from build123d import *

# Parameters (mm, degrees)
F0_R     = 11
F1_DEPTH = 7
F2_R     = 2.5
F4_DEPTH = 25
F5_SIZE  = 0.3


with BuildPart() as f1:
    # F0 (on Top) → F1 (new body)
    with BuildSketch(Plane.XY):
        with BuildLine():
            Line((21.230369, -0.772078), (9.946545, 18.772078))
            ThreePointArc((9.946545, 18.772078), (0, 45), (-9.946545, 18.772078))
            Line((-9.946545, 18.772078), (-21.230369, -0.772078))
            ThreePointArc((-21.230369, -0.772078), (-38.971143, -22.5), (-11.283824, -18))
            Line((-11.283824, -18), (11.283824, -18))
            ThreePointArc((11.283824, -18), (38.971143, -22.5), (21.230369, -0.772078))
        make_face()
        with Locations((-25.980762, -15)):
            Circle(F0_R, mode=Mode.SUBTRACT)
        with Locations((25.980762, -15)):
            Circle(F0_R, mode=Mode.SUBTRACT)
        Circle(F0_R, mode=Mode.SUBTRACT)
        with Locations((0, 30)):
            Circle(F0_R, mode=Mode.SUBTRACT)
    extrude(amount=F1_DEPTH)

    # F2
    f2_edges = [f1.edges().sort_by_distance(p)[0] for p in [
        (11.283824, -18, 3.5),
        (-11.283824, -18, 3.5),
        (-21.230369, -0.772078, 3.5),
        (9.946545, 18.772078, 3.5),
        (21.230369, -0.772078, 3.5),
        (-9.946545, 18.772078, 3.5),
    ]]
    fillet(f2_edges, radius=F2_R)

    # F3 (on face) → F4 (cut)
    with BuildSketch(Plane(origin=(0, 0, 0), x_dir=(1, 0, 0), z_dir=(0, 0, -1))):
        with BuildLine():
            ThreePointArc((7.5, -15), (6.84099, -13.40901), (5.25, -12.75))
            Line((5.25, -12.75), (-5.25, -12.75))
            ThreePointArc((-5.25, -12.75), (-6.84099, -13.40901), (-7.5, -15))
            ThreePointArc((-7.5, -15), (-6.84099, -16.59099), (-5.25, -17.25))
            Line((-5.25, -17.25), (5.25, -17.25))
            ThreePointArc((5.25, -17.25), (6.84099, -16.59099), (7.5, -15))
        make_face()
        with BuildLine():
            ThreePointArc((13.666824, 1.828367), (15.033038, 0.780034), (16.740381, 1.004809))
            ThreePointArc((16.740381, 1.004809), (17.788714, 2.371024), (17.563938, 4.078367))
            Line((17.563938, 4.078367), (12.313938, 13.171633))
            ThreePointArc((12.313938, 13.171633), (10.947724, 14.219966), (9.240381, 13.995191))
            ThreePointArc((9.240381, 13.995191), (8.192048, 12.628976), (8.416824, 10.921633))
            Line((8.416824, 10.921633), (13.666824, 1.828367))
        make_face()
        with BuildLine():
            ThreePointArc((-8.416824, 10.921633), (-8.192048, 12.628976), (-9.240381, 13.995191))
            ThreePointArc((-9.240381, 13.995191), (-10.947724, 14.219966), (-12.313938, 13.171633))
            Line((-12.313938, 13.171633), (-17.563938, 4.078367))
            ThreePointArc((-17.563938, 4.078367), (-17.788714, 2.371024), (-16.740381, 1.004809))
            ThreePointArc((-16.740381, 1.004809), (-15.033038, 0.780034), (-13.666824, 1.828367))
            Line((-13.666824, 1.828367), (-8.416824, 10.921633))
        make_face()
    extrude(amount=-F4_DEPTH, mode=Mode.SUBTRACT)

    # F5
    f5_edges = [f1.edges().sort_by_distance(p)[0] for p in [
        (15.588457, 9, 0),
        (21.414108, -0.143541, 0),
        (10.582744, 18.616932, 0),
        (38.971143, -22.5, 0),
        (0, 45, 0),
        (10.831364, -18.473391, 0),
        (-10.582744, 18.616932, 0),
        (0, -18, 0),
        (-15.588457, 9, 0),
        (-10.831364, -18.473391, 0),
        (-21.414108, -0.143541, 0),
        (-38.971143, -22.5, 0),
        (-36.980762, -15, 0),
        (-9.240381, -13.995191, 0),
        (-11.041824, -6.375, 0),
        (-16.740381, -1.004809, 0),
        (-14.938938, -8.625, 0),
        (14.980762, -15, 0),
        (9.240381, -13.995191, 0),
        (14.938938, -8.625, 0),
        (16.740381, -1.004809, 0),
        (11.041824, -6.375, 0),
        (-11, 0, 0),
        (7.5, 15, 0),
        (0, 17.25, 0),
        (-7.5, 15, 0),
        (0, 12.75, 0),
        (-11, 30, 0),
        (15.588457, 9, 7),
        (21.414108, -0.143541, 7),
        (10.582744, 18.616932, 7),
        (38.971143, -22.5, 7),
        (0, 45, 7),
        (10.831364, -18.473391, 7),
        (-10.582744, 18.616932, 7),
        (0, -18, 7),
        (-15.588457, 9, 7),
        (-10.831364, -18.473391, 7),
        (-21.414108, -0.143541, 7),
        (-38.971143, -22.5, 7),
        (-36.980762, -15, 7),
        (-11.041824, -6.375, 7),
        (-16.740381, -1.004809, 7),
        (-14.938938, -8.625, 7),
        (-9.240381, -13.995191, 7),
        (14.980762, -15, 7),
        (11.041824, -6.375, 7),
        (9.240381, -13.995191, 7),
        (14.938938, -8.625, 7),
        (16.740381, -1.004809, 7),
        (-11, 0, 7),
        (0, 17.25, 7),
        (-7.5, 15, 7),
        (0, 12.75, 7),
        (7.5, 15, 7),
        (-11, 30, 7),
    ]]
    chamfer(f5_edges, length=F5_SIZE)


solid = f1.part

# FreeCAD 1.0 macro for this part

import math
import FreeCAD as App
import Part
import Sketcher

V = App.Vector
Q = App.Units.Quantity


def edges_at(feature, points):
    """Names of the edges that pass closest to the given points."""
    edges = feature.Shape.Edges
    near = lambda p: min(range(len(edges)), key=lambda i: edges[i].distToShape(Part.Vertex(*p))[0])
    return sorted({f"Edge{near(p) + 1}" for p in points})

doc = App.newDocument("Part")
body = doc.addObject("PartDesign::Body", "Body")

sketch1 = body.newObject("Sketcher::SketchObject", "Sketch")
sketch1.AttachmentSupport = (doc.getObject("XY_Plane"), [""])
sketch1.MapMode = "FlatFace"
sketch1.addGeometry(Part.LineSegment(V(21.230369, -0.772078, 0), V(9.946545, 18.772078, 0)), False)
sketch1.addGeometry(Part.ArcOfCircle(Part.Circle(V(0, 30, 0), V(0, 0, 1), 15), math.radians(-48.463043), math.radians(228.463043)), False)
sketch1.addGeometry(Part.LineSegment(V(-9.946545, 18.772078, 0), V(-21.230369, -0.772078, 0)), False)
sketch1.addGeometry(Part.ArcOfCircle(Part.Circle(V(-25.980762, -15, 0), V(0, 0, 1), 15), math.radians(71.536958), math.radians(348.46304)), False)
sketch1.addGeometry(Part.LineSegment(V(-11.283824, -18, 0), V(11.283824, -18, 0)), False)
sketch1.addGeometry(Part.ArcOfCircle(Part.Circle(V(25.980762, -15, 0), V(0, 0, 1), 15), math.radians(-168.46304), math.radians(108.463042)), False)
sketch1.addGeometry(Part.Circle(V(-25.980762, -15, 0), V(0, 0, 1), 11), False)
sketch1.addGeometry(Part.Circle(V(25.980762, -15, 0), V(0, 0, 1), 11), False)
sketch1.addGeometry(Part.Circle(V(0, 0, 0), V(0, 0, 1), 11), False)
sketch1.addGeometry(Part.Circle(V(0, 30, 0), V(0, 0, 1), 11), False)
sketch1.addConstraint(Sketcher.Constraint("Coincident", 0, 2, 1, 1))
sketch1.addConstraint(Sketcher.Constraint("Coincident", 1, 2, 2, 1))
sketch1.addConstraint(Sketcher.Constraint("Coincident", 2, 2, 3, 1))
sketch1.addConstraint(Sketcher.Constraint("Coincident", 3, 2, 4, 1))
sketch1.addConstraint(Sketcher.Constraint("Coincident", 4, 2, 5, 1))
sketch1.addConstraint(Sketcher.Constraint("Coincident", 5, 2, 0, 1))
sketch1.addConstraint(Sketcher.Constraint("Horizontal", 4))
sketch1.addConstraint(Sketcher.Constraint("Coincident", 8, 3, -1, 1))
sketch1.addConstraint(Sketcher.Constraint("Coincident", 6, 3, 3, 3))
sketch1.addConstraint(Sketcher.Constraint("Coincident", 7, 3, 5, 3))
sketch1.addConstraint(Sketcher.Constraint("Coincident", 9, 3, 1, 3))
sketch1.addConstraint(Sketcher.Constraint("Equal", 1, 3))
sketch1.addConstraint(Sketcher.Constraint("Equal", 3, 5))
sketch1.addConstraint(Sketcher.Constraint("Equal", 6, 7))
sketch1.addConstraint(Sketcher.Constraint("Equal", 7, 8))
sketch1.addConstraint(Sketcher.Constraint("Equal", 8, 9))
sketch1.addConstraint(Sketcher.Constraint("Symmetric", 3, 3, 5, 3, -2))
sketch1.addConstraint(Sketcher.Constraint("Symmetric", 0, 2, 1, 2, -2))
sketch1.addConstraint(Sketcher.Constraint("Horizontal", 2, 2, 5, 2))
sketch1.addConstraint(Sketcher.Constraint("Diameter", 6, Q("22 mm")))
sketch1.addConstraint(Sketcher.Constraint("Radius", 1, Q("15 mm")))
sketch1.addConstraint(Sketcher.Constraint("Angle", 0, Q("120.000001 deg")))
sketch1.addConstraint(Sketcher.Constraint("DistanceY", -1, 1, 1, 3, Q("30 mm")))
sketch1.addConstraint(Sketcher.Constraint("DistanceY", 3, 3, -1, 1, Q("15 mm")))
sketch1.addConstraint(Sketcher.Constraint("DistanceY", 3, 2, -1, 1, Q("18 mm")))
sketch1.addConstraint(Sketcher.Constraint("DistanceX", 4, 1, 4, 2, Q("22.567648 mm")))
sketch1.addConstraint(Sketcher.Constraint("DistanceY", -1, 1, 0, 2, Q("18.772078 mm")))
pad1 = body.newObject("PartDesign::Pad", "Pad")
pad1.Profile = sketch1
pad1.Length = 7
doc.recompute()

fillet = body.newObject("PartDesign::Fillet", "Fillet")
fillet.Base = (pad1, edges_at(pad1, [
    (11.284, -18, 3.5),
    (-11.284, -18, 3.5),
    (-21.23, -0.772, 3.5),
    (9.947, 18.772, 3.5),
    (21.23, -0.772, 3.5),
    (-9.947, 18.772, 3.5),
]))
fillet.Radius = 2.5

sketch2 = body.newObject("Sketcher::SketchObject", "Sketch001")
sketch2.AttachmentSupport = (doc.getObject("XY_Plane"), [""])
sketch2.MapMode = "FlatFace"
sketch2.addGeometry(Part.ArcOfCircle(Part.Circle(V(5.249999, 15.000001, 0), V(0, 0, 1), 2.250001), math.radians(-89.999978), math.radians(-0.000022)), False)
sketch2.addGeometry(Part.LineSegment(V(5.25, 12.75, 0), V(-5.25, 12.75, 0)), False)
sketch2.addGeometry(Part.ArcOfCircle(Part.Circle(V(-5.249999, 15.000001, 0), V(0, 0, 1), 2.250001), math.radians(-179.999978), math.radians(-90.000022)), False)
sketch2.addGeometry(Part.ArcOfCircle(Part.Circle(V(-5.249999, 14.999999, 0), V(0, 0, 1), 2.250001), math.radians(90.000022), math.radians(179.999978)), False)
sketch2.addGeometry(Part.LineSegment(V(-5.25, 17.25, 0), V(5.25, 17.25, 0)), False)
sketch2.addGeometry(Part.ArcOfCircle(Part.Circle(V(5.249999, 14.999999, 0), V(0, 0, 1), 2.250001), math.radians(0.000022), math.radians(89.999978)), False)
sketch2.addGeometry(Part.ArcOfCircle(Part.Circle(V(15.615382, -2.953368, 0), V(0, 0, 1), 2.250001), math.radians(60.000044), math.radians(149.999987)), False)
sketch2.addGeometry(Part.ArcOfCircle(Part.Circle(V(15.61538, -2.953367, 0), V(0, 0, 1), 2.250001), math.radians(-29.999991), math.radians(59.999977)), False)
sketch2.addGeometry(Part.LineSegment(V(17.563938, -4.078367, 0), V(12.313938, -13.171633, 0)), False)
sketch2.addGeometry(Part.ArcOfCircle(Part.Circle(V(10.36538, -12.046632, 0), V(0, 0, 1), 2.250001), math.radians(-119.999956), math.radians(-30.000013)), False)
sketch2.addGeometry(Part.ArcOfCircle(Part.Circle(V(10.365382, -12.046633, 0), V(0, 0, 1), 2.250001), math.radians(150.000009), math.radians(239.999977)), False)
sketch2.addGeometry(Part.LineSegment(V(8.416824, -10.921633, 0), V(13.666824, -1.828367, 0)), False)
sketch2.addGeometry(Part.ArcOfCircle(Part.Circle(V(-10.365382, -12.046633, 0), V(0, 0, 1), 2.250001), math.radians(-59.999977), math.radians(29.999991)), False)
sketch2.addGeometry(Part.ArcOfCircle(Part.Circle(V(-10.36538, -12.046632, 0), V(0, 0, 1), 2.250001), math.radians(-149.999987), math.radians(-60.000044)), False)
sketch2.addGeometry(Part.LineSegment(V(-12.313938, -13.171633, 0), V(-17.563938, -4.078367, 0)), False)
sketch2.addGeometry(Part.ArcOfCircle(Part.Circle(V(-15.61538, -2.953367, 0), V(0, 0, 1), 2.250001), math.radians(120.000023), math.radians(209.999991)), False)
sketch2.addGeometry(Part.ArcOfCircle(Part.Circle(V(-15.615382, -2.953368, 0), V(0, 0, 1), 2.250001), math.radians(30.000013), math.radians(119.999956)), False)
sketch2.addGeometry(Part.LineSegment(V(-13.666824, -1.828367, 0), V(-8.416824, -10.921633, 0)), False)
sketch2.addConstraint(Sketcher.Constraint("Tangent", 0, 1, 1, 1))
sketch2.addConstraint(Sketcher.Constraint("Tangent", 1, 2, 2, 2))
sketch2.addConstraint(Sketcher.Constraint("Tangent", 2, 1, 3, 2))
sketch2.addConstraint(Sketcher.Constraint("Tangent", 3, 1, 4, 1))
sketch2.addConstraint(Sketcher.Constraint("Tangent", 4, 2, 5, 2))
sketch2.addConstraint(Sketcher.Constraint("Tangent", 5, 1, 0, 2))
sketch2.addConstraint(Sketcher.Constraint("Tangent", 6, 1, 7, 2))
sketch2.addConstraint(Sketcher.Constraint("Tangent", 7, 1, 8, 1))
sketch2.addConstraint(Sketcher.Constraint("Tangent", 8, 2, 9, 2))
sketch2.addConstraint(Sketcher.Constraint("Tangent", 9, 1, 10, 2))
sketch2.addConstraint(Sketcher.Constraint("Tangent", 10, 1, 11, 1))
sketch2.addConstraint(Sketcher.Constraint("Tangent", 11, 2, 6, 2))
sketch2.addConstraint(Sketcher.Constraint("Tangent", 12, 1, 13, 2))
sketch2.addConstraint(Sketcher.Constraint("Tangent", 13, 1, 14, 1))
sketch2.addConstraint(Sketcher.Constraint("Tangent", 14, 2, 15, 2))
sketch2.addConstraint(Sketcher.Constraint("Tangent", 15, 1, 16, 2))
sketch2.addConstraint(Sketcher.Constraint("Tangent", 16, 1, 17, 1))
sketch2.addConstraint(Sketcher.Constraint("Tangent", 17, 2, 12, 2))
sketch2.addConstraint(Sketcher.Constraint("Horizontal", 1))
sketch2.addConstraint(Sketcher.Constraint("Horizontal", 4))
sketch2.addConstraint(Sketcher.Constraint("Equal", 0, 2))
sketch2.addConstraint(Sketcher.Constraint("Equal", 2, 3))
sketch2.addConstraint(Sketcher.Constraint("Equal", 5, 6))
sketch2.addConstraint(Sketcher.Constraint("Equal", 6, 7))
sketch2.addConstraint(Sketcher.Constraint("Equal", 7, 9))
sketch2.addConstraint(Sketcher.Constraint("Equal", 9, 10))
sketch2.addConstraint(Sketcher.Constraint("Equal", 10, 12))
sketch2.addConstraint(Sketcher.Constraint("Equal", 12, 13))
sketch2.addConstraint(Sketcher.Constraint("Equal", 13, 15))
sketch2.addConstraint(Sketcher.Constraint("Equal", 15, 16))
sketch2.addConstraint(Sketcher.Constraint("Symmetric", 9, 3, 12, 3, -2))
sketch2.addConstraint(Sketcher.Constraint("Symmetric", 6, 3, 15, 3, -2))
sketch2.addConstraint(Sketcher.Constraint("Symmetric", 2, 1, 5, 1, -2))
sketch2.addConstraint(Sketcher.Constraint("Horizontal", 5, 3, 2, 1))
sketch2.addConstraint(Sketcher.Constraint("Horizontal", 9, 1, 12, 1))
sketch2.addConstraint(Sketcher.Constraint("Horizontal", 6, 1, 15, 1))
sketch2.addConstraint(Sketcher.Constraint("Angle", 8, Q("-120.000002 deg")))
sketch2.addConstraint(Sketcher.Constraint("Radius", 0, Q("2.250001 mm")))
sketch2.addConstraint(Sketcher.Constraint("DistanceX", 1, 2, 1, 1, Q("10.5 mm")))
sketch2.addConstraint(Sketcher.Constraint("DistanceY", -1, 1, 0, 3, Q("15.000001 mm")))
sketch2.addConstraint(Sketcher.Constraint("Distance", 8, Q("10.499999 mm")))
sketch2.addConstraint(Sketcher.Constraint("DistanceX", 7, 3, 6, 1, Q("1.125001 mm")))
sketch2.addConstraint(Sketcher.Constraint("DistanceX", 9, 1, 10, 3, Q("1.125001 mm")))
sketch2.addConstraint(Sketcher.Constraint("DistanceX", -1, 1, 6, 3, Q("15.615382 mm")))
sketch2.addConstraint(Sketcher.Constraint("DistanceY", 6, 3, -1, 1, Q("2.953368 mm")))
pocket1 = body.newObject("PartDesign::Pocket", "Pocket")
pocket1.Profile = sketch2
pocket1.Length = 25
pocket1.Reversed = True
doc.recompute()

chamfer = body.newObject("PartDesign::Chamfer", "Chamfer")
chamfer.Base = (pocket1, edges_at(pocket1, [
    (15.588, 9, 0),
    (21.414, -0.144, 0),
    (10.583, 18.617, 0),
    (38.971, -22.5, 0),
    (0, 45, 0),
    (10.831, -18.473, 0),
    (-10.583, 18.617, 0),
    (0, -18, 0),
    (-15.588, 9, 0),
    (-10.831, -18.473, 0),
    (-21.414, -0.144, 0),
    (-38.971, -22.5, 0),
    (-36.981, -15, 0),
    (-10.948, -14.22, 0),
    (-11.042, -6.375, 0),
    (-15.033, -0.78, 0),
    (-14.939, -8.625, 0),
    (14.981, -15, 0),
    (8.192, -12.629, 0),
    (14.939, -8.625, 0),
    (17.789, -2.371, 0),
    (11.042, -6.375, 0),
    (-11, 0, 0),
    (6.841, 16.591, 0),
    (0, 17.25, 0),
    (-6.841, 16.591, 0),
    (0, 12.75, 0),
    (-11, 30, 0),
    (15.588, 9, 7),
    (21.414, -0.144, 7),
    (10.583, 18.617, 7),
    (38.971, -22.5, 7),
    (0, 45, 7),
    (10.831, -18.473, 7),
    (-10.583, 18.617, 7),
    (0, -18, 7),
    (-15.588, 9, 7),
    (-10.831, -18.473, 7),
    (-21.414, -0.144, 7),
    (-38.971, -22.5, 7),
    (-36.981, -15, 7),
    (-11.042, -6.375, 7),
    (-15.033, -0.78, 7),
    (-14.939, -8.625, 7),
    (-10.948, -14.22, 7),
    (14.981, -15, 7),
    (11.042, -6.375, 7),
    (8.192, -12.629, 7),
    (14.939, -8.625, 7),
    (17.789, -2.371, 7),
    (-11, 0, 7),
    (0, 17.25, 7),
    (-6.841, 16.591, 7),
    (0, 12.75, 7),
    (6.841, 16.591, 7),
    (-11, 30, 7),
]))
chamfer.Size = 0.3

doc.recompute()
